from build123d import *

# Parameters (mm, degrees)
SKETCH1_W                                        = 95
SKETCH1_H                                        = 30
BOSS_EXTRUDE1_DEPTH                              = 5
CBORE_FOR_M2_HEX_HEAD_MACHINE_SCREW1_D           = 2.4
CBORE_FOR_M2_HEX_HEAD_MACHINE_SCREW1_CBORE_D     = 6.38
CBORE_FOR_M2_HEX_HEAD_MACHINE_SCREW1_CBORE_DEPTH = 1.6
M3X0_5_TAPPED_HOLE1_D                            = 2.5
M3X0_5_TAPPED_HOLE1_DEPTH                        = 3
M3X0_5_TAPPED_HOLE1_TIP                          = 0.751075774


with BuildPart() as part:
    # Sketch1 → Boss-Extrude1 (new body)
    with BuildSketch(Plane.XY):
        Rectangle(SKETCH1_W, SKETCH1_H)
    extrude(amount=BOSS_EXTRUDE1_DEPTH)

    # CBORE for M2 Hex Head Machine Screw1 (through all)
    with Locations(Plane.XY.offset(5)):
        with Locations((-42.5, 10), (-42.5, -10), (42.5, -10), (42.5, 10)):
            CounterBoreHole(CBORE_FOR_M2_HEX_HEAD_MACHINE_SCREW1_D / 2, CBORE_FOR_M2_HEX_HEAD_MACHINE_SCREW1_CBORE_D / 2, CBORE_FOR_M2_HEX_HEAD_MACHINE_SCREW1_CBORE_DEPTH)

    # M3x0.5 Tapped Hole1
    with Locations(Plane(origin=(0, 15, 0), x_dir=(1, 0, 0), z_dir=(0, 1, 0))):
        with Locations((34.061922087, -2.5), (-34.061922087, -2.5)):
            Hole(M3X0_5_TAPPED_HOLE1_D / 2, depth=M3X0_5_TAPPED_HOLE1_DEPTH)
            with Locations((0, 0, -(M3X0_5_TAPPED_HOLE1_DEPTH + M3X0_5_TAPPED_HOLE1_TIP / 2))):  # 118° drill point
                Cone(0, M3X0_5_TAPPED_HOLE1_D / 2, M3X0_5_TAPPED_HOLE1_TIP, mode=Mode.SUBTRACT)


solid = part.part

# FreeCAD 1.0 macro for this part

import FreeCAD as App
import Part
import Sketcher
from FreeCAD import Vector
Q = App.Units.Quantity


def add_polygon(sketch, points):
    """Adds a closed chain of lines whose ends are joined by coincident constraints."""
    first, n = sketch.GeometryCount, len(points)
    for a, b in zip(points, points[1:] + points[:1]):
        sketch.addGeometry(Part.LineSegment(App.Vector(*a, 0), App.Vector(*b, 0)), False)
    for i in range(n):
        sketch.addConstraint(Sketcher.Constraint("Coincident", first + i, 2, first + (i + 1) % n, 1))

doc = App.newDocument("Part")
body = doc.addObject("PartDesign::Body", "Body")

# Sketch on XY plane
sketch1 = body.newObject("Sketcher::SketchObject", "Sketch")
sketch1.AttachmentSupport = (doc.getObject("XY_Plane"), [""])
sketch1.MapMode = "FlatFace"
add_polygon(sketch1, [(-47.5, 15), (-47.5, -15), (47.5, -15), (47.5, 15)])  # lines 0-3
sketch1.addConstraint([
    Sketcher.Constraint("Vertical", 0),
    Sketcher.Constraint("Horizontal", 1),
    Sketcher.Constraint("Vertical", 2),
    Sketcher.Constraint("Horizontal", 3),
    Sketcher.Constraint("Symmetric", 0, 2, 2, 2, -1, 1),
    Sketcher.Constraint("DistanceX", 1, 1, 1, 2, Q("95 mm")),
    Sketcher.Constraint("DistanceY", 0, 2, 0, 1, Q("30 mm")),
])
pad1 = body.newObject("PartDesign::Pad", "Pad")
pad1.Profile = sketch1
pad1.Length = 5

# Sketch on XY plane
sketch2 = body.newObject("Sketcher::SketchObject", "Sketch001")
sketch2.AttachmentSupport = (doc.getObject("XY_Plane"), [""])
sketch2.MapMode = "FlatFace"
sketch2.AttachmentOffset = App.Placement(Vector(0, 0, 5), App.Rotation())
sketch2.addGeometry([
    Part.Circle(Vector(-42.5, 10, 0), Vector(0, 0, 1), 1.2),
    Part.Circle(Vector(-42.5, -10, 0), Vector(0, 0, 1), 1.2),
    Part.Circle(Vector(42.5, -10, 0), Vector(0, 0, 1), 1.2),
    Part.Circle(Vector(42.5, 10, 0), Vector(0, 0, 1), 1.2),
], False)
sketch2.addConstraint([
    Sketcher.Constraint("Equal", 0, 1),
    Sketcher.Constraint("Equal", 1, 2),
    Sketcher.Constraint("Equal", 2, 3),
    Sketcher.Constraint("Symmetric", 0, 3, 2, 3, -1, 1),
    Sketcher.Constraint("Symmetric", 1, 3, 3, 3, -1, 1),
    Sketcher.Constraint("Symmetric", 1, 3, 2, 3, -2),
    Sketcher.Constraint("Diameter", 0, Q("2.4 mm")),
    Sketcher.Constraint("DistanceY", -1, 1, 0, 3, Q("10 mm")),
    Sketcher.Constraint("DistanceX", 1, 3, 2, 3, Q("85 mm")),
])
doc.recompute()
hole = body.newObject("PartDesign::Hole", "Hole")
hole.Profile = sketch2
hole.ThreadType = "None"
hole.Diameter = 2.4
hole.DepthType = "ThroughAll"
hole.HoleCutType = "Counterbore"
hole.HoleCutDiameter = 6.38
hole.HoleCutDepth = 1.6

# Sketch on XZ plane
sketch3 = body.newObject("Sketcher::SketchObject", "Sketch002")
sketch3.AttachmentSupport = (doc.getObject("XZ_Plane"), [""])
sketch3.MapMode = "FlatFace"
sketch3.AttachmentOffset = App.Placement(Vector(0, 0, -15), App.Rotation())
sketch3.addGeometry([
    Part.Circle(Vector(34.061922, 2.5, 0), Vector(0, 0, 1), 1.25),
    Part.Circle(Vector(-34.061922, 2.5, 0), Vector(0, 0, 1), 1.25),
], False)
sketch3.addConstraint([
    Sketcher.Constraint("Equal", 0, 1),
    Sketcher.Constraint("Symmetric", 0, 3, 1, 3, -2),
    Sketcher.Constraint("Diameter", 0, Q("2.5 mm")),
    Sketcher.Constraint("DistanceY", -1, 1, 0, 3, Q("2.5 mm")),
    Sketcher.Constraint("DistanceX", -1, 1, 0, 3, Q("34.061922 mm")),
])
doc.recompute()
hole2 = body.newObject("PartDesign::Hole", "Hole001")
hole2.Profile = sketch3
hole2.ThreadType = "None"
hole2.Diameter = 2.5
hole2.DepthType = "Dimension"
hole2.Depth = 3
hole2.DrillPoint = "Angled"
hole2.DrillPointAngle = 118
hole2.Reversed = True

doc.recompute()
